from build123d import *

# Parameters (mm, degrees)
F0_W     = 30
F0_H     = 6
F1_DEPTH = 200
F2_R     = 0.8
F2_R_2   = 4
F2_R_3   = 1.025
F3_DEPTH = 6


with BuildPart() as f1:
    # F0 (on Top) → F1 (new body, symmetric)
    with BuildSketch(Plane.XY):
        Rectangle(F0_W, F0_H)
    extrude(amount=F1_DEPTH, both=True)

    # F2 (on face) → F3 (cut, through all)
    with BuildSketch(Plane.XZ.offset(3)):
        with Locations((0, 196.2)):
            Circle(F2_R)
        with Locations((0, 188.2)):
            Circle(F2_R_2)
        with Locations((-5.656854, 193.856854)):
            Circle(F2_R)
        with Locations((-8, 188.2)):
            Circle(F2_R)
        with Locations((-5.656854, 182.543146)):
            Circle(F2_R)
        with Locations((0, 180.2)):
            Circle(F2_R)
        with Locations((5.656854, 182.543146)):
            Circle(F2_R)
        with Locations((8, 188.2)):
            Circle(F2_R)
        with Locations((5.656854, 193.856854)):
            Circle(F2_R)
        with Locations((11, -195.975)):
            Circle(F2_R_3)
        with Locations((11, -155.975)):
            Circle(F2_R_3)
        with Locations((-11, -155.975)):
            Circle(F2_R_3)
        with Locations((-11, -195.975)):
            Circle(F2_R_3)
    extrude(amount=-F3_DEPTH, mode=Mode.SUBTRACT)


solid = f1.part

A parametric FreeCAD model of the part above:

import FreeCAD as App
import Part
import Sketcher

V = App.Vector
Q = App.Units.Quantity

doc = App.newDocument("Part")
params = doc.addObject("Spreadsheet::Sheet", "Params")
for row, (alias, value) in enumerate([
    ("sketch1_width", "30 mm"),
    ("sketch1_height", "6 mm"),
    ("pad1_length", "400 mm"),
    ("sketch2_diameter", "8 mm"),
    ("sketch2_diameter2", "1.6 mm"),
    ("sketch2_diameter3", "2.05 mm"),
], start=1):
    params.set(f"A{row}", alias)
    params.set(f"B{row}", "=" + value)
    params.setAlias(f"B{row}", alias)

body = doc.addObject("PartDesign::Body", "Body")

# Sketch on XY plane
sketch1 = doc.addObject("Sketcher::SketchObject", "Sketch")
body.addObject(sketch1)
sketch1.AttachmentSupport = (doc.XY_Plane, [""])
sketch1.MapMode = "FlatFace"
sketch1.addGeometry([
    Part.LineSegment(V(-15, 3, 0), V(-15, -3, 0)),
    Part.LineSegment(V(-15, -3, 0), V(15, -3, 0)),
    Part.LineSegment(V(15, -3, 0), V(15, 3, 0)),
    Part.LineSegment(V(15, 3, 0), V(-15, 3, 0)),
], False)
sketch1.addConstraint([
    Sketcher.Constraint("Coincident", 0, 2, 1, 1),
    Sketcher.Constraint("Coincident", 1, 2, 2, 1),
    Sketcher.Constraint("Coincident", 2, 2, 3, 1),
    Sketcher.Constraint("Coincident", 3, 2, 0, 1),
    Sketcher.Constraint("Vertical", 0),
    Sketcher.Constraint("Horizontal", 1),
    Sketcher.Constraint("Vertical", 2),
    Sketcher.Constraint("Horizontal", 3),
    Sketcher.Constraint("Symmetric", 0, 2, 2, 2, -1, 1),
    Sketcher.Constraint("DistanceX", 1, 1, 1, 2, Q("30 mm")),
    Sketcher.Constraint("DistanceY", 0, 2, 0, 1, Q("6 mm")),
])
sketch1.setExpression("Constraints[9]", "Params.sketch1_width")
sketch1.setExpression("Constraints[10]", "Params.sketch1_height")
pad1 = doc.addObject("PartDesign::Pad", "Pad")
body.addObject(pad1)
pad1.Profile = sketch1
pad1.setExpression("Length", "Params.pad1_length")
pad1.Midplane = True

# Sketch on XZ plane
sketch2 = doc.addObject("Sketcher::SketchObject", "Sketch001")
body.addObject(sketch2)
sketch2.AttachmentSupport = (doc.XZ_Plane, [""])
sketch2.MapMode = "FlatFace"
sketch2.AttachmentOffset = App.Placement(V(0, 0, 3), App.Rotation())
sketch2.addGeometry([
    Part.Circle(V(0, 196.2, 0), V(0, 0, 1), 0.8),  # 0
    Part.Circle(V(0, 188.2, 0), V(0, 0, 1), 4),  # 1
    Part.Circle(V(-5.656854, 193.856854, 0), V(0, 0, 1), 0.8),  # 2
    Part.Circle(V(-8, 188.2, 0), V(0, 0, 1), 0.8),  # 3
    Part.Circle(V(-5.656854, 182.543146, 0), V(0, 0, 1), 0.8),  # 4
    Part.Circle(V(0, 180.2, 0), V(0, 0, 1), 0.8),  # 5
    Part.Circle(V(5.656854, 182.543146, 0), V(0, 0, 1), 0.8),  # 6
    Part.Circle(V(8, 188.2, 0), V(0, 0, 1), 0.8),  # 7
    Part.Circle(V(5.656854, 193.856854, 0), V(0, 0, 1), 0.8),  # 8
    Part.Circle(V(11, -195.975, 0), V(0, 0, 1), 1.025),  # 9
    Part.Circle(V(11, -155.975, 0), V(0, 0, 1), 1.025),  # 10
    Part.Circle(V(-11, -155.975, 0), V(0, 0, 1), 1.025),  # 11
    Part.Circle(V(-11, -195.975, 0), V(0, 0, 1), 1.025),  # 12
], False)
sketch2.addConstraint([
    Sketcher.Constraint("Equal", 0, 2),
    Sketcher.Constraint("Equal", 2, 3),
    Sketcher.Constraint("Equal", 3, 4),
    Sketcher.Constraint("Equal", 4, 5),
    Sketcher.Constraint("Equal", 5, 6),
    Sketcher.Constraint("Equal", 6, 7),
    Sketcher.Constraint("Equal", 7, 8),
    Sketcher.Constraint("Equal", 9, 10),
    Sketcher.Constraint("Equal", 10, 11),
    Sketcher.Constraint("Equal", 11, 12),
    Sketcher.Constraint("Symmetric", 4, 3, 6, 3, -2),
    Sketcher.Constraint("Symmetric", 3, 3, 7, 3, -2),
    Sketcher.Constraint("Symmetric", 2, 3, 8, 3, -2),
    Sketcher.Constraint("Symmetric", 10, 3, 11, 3, -2),
    Sketcher.Constraint("Symmetric", 9, 3, 12, 3, -2),
    Sketcher.Constraint("PointOnObject", 0, 3, -2),
    Sketcher.Constraint("PointOnObject", 1, 3, -2),
    Sketcher.Constraint("PointOnObject", 5, 3, -2),
    Sketcher.Constraint("Horizontal", 1, 3, 3, 3),
    Sketcher.Constraint("Vertical", 2, 3, 4, 3),
    Sketcher.Constraint("Vertical", 9, 3, 10, 3),
    Sketcher.Constraint("Diameter", 1, Q("8 mm")),
    Sketcher.Constraint("Diameter", 0, Q("1.6 mm")),
    Sketcher.Constraint("Diameter", 9, Q("2.05 mm")),
    Sketcher.Constraint("DistanceX", 3, 3, -1, 1, Q("8 mm")),
    Sketcher.Constraint("DistanceX", -1, 1, 9, 3, Q("11 mm")),
    Sketcher.Constraint("DistanceY", 1, 3, 0, 3, Q("8 mm")),
    Sketcher.Constraint("DistanceY", 5, 3, 1, 3, Q("8 mm")),
    Sketcher.Constraint("DistanceY", 9, 3, 10, 3, Q("40 mm")),
    Sketcher.Constraint("DistanceY", -1, 1, 0, 3, Q("196.2 mm")),
    Sketcher.Constraint("DistanceY", 9, 3, -1, 1, Q("195.975 mm")),
    Sketcher.Constraint("DistanceX", 2, 3, -1, 1, Q("5.656854 mm")),
    Sketcher.Constraint("DistanceY", -1, 1, 2, 3, Q("193.856854 mm")),
    Sketcher.Constraint("DistanceY", -1, 1, 4, 3, Q("182.543146 mm")),
])
sketch2.setExpression("Constraints[21]", "Params.sketch2_diameter")
sketch2.setExpression("Constraints[22]", "Params.sketch2_diameter2")
sketch2.setExpression("Constraints[23]", "Params.sketch2_diameter3")
pocket1 = doc.addObject("PartDesign::Pocket", "Pocket")
body.addObject(pocket1)
pocket1.Profile = sketch2
pocket1.Type = "ThroughAll"

doc.recompute()
